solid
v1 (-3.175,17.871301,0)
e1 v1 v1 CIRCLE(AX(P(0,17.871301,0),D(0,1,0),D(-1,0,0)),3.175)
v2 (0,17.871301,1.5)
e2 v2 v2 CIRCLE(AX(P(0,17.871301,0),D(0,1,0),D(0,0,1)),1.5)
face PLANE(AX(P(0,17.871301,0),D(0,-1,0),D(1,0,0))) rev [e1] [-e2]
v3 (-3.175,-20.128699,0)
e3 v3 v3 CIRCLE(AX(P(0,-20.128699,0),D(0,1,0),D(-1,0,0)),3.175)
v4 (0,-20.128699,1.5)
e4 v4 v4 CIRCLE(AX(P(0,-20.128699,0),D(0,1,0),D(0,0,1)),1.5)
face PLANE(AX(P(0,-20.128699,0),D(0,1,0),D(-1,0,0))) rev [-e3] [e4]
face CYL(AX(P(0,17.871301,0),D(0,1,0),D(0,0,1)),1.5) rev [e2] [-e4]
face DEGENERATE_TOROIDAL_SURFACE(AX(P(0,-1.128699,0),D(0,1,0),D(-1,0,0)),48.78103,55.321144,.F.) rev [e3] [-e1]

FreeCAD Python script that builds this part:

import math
import FreeCAD as App
import Part
import Sketcher
Q = App.Units.Quantity

doc = App.newDocument("Part")
body = doc.addObject("PartDesign::Body", "Body")

# Sketch on XY plane
sketch1 = body.newObject("Sketcher::SketchObject", "Sketch")
sketch1.AttachmentSupport = (doc.getObject("XY_Plane"), [""])
sketch1.MapMode = "FlatFace"
sketch1.addGeometry([
    Part.LineSegment(App.Vector(3.2, 17.9, 0), App.Vector(0, 17.9, 0)),
    Part.LineSegment(App.Vector(0, 17.9, 0), App.Vector(0, -20.1, 0)),
    Part.LineSegment(App.Vector(0, -20.1, 0), App.Vector(3.2, -20.1, 0)),
    Part.ArcOfCircle(Part.Circle(App.Vector(-48.8, -1.1, 0), App.Vector(0, 0, 1), 55.3), math.radians(-20), math.radians(20)),
], False)
sketch1.addConstraint([
    Sketcher.Constraint("Coincident", 0, 2, 1, 1),
    Sketcher.Constraint("Coincident", 1, 2, 2, 1),
    Sketcher.Constraint("Coincident", 2, 2, 3, 1),
    Sketcher.Constraint("Coincident", 3, 2, 0, 1),
    Sketcher.Constraint("Horizontal", 0),
    Sketcher.Constraint("Vertical", 1),
    Sketcher.Constraint("Horizontal", 2),
    Sketcher.Constraint("PointOnObject", 0, 2, -2),
    Sketcher.Constraint("Vertical", 2, 2, 3, 2),
    Sketcher.Constraint("DistanceY", 1, 2, 1, 1, Q("38 mm")),
    Sketcher.Constraint("DistanceX", 0, 2, 0, 1, Q("3.175 mm")),
    Sketcher.Constraint("Radius", 3, Q("55.321144 mm")),
    Sketcher.Constraint("DistanceY", 3, 3, -1, 1, Q("1.128699 mm")),
])
revolution = body.newObject("PartDesign::Revolution", "Revolution")
revolution.Profile = sketch1
revolution.ReferenceAxis = (sketch1, ["V_Axis"])
revolution.Angle = 360

# Sketch on XZ plane
sketch2 = body.newObject("Sketcher::SketchObject", "Sketch001")
sketch2.AttachmentSupport = (doc.getObject("XZ_Plane"), [""])
sketch2.MapMode = "FlatFace"
sketch2.AttachmentOffset = App.Placement(App.Vector(0, 0, -17.871301), App.Rotation())
sketch2.addGeometry(Part.Circle(App.Vector(0, 0, 0), App.Vector(0, 0, 1), 1.5), False)
sketch2.addConstraint([
    Sketcher.Constraint("Coincident", 0, 3, -1, 1),
    Sketcher.Constraint("Diameter", 0, Q("3 mm")),
])
doc.recompute()
hole = body.newObject("PartDesign::Hole", "Hole")
hole.Profile = sketch2
hole.ThreadType = "None"
hole.Diameter = 3
hole.DepthType = "ThroughAll"
hole.Reversed = True

doc.recompute()
